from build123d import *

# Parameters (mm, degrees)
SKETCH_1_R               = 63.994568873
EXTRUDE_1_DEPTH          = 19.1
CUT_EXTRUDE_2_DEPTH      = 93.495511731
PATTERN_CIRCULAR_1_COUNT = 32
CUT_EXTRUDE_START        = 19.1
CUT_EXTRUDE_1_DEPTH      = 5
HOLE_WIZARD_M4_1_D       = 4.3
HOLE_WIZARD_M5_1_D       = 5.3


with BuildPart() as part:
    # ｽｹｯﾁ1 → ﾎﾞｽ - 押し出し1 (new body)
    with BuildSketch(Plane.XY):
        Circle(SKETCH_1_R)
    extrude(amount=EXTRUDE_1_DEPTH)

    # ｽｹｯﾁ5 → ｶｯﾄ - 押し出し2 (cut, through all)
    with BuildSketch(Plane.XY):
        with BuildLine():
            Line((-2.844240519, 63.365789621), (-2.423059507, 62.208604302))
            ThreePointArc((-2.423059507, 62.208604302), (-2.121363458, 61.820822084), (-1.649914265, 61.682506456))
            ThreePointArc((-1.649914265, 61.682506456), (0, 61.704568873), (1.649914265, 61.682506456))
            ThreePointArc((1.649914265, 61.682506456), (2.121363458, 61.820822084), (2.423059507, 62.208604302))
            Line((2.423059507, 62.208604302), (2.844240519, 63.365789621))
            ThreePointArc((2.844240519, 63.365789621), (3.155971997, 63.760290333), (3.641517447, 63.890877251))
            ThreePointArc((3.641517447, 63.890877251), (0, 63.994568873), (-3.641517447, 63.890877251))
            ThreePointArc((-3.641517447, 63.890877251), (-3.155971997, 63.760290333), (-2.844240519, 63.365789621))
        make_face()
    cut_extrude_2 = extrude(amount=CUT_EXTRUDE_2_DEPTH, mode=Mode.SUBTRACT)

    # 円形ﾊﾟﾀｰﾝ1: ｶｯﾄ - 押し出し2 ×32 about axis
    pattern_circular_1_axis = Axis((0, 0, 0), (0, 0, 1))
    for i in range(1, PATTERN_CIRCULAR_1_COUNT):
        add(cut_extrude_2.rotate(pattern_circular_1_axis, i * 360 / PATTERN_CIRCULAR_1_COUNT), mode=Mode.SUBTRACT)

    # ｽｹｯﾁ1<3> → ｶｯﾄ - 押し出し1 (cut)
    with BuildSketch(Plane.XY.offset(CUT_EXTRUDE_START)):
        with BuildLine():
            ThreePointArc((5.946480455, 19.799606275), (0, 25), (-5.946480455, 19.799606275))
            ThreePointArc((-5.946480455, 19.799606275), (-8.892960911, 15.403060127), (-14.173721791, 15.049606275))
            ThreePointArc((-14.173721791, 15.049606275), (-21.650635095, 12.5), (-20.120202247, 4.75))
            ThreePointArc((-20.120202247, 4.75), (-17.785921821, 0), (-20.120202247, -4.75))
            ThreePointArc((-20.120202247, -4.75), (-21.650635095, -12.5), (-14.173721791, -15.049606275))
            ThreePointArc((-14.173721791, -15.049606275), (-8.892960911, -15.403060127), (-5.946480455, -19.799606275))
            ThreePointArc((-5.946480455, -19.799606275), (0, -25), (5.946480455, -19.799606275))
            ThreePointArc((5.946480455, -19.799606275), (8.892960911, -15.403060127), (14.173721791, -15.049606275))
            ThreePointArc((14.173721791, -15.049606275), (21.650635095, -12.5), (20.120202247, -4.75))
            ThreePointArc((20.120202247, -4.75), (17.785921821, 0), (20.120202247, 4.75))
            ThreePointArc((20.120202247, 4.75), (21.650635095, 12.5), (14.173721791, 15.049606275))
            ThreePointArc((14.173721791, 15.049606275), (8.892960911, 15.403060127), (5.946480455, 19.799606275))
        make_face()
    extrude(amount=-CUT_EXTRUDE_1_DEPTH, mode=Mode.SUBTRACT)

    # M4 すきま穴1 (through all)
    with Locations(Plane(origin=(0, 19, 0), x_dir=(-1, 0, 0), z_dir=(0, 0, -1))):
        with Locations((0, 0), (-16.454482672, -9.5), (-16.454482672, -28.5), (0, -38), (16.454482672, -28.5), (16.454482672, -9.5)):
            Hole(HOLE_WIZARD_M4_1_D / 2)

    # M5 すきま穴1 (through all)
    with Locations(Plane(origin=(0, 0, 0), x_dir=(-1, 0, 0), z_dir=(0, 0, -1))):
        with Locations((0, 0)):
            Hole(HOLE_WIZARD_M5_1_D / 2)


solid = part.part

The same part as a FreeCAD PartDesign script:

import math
import FreeCAD as App
import Part
import Sketcher
Q = App.Units.Quantity

doc = App.newDocument("Part")
body = doc.addObject("PartDesign::Body", "Body")

# Sketch on XY plane
sketch1 = body.newObject("Sketcher::SketchObject", "Sketch")
sketch1.AttachmentSupport = (doc.getObject("XY_Plane"), [""])
sketch1.MapMode = "FlatFace"
sketch1.addGeometry(Part.Circle(App.Vector(0, 0, 0), App.Vector(0, 0, 1), 63.994569), False)
sketch1.addConstraint([
    Sketcher.Constraint("Coincident", 0, 3, -1, 1),
    Sketcher.Constraint("Diameter", 0, Q("127.989138 mm")),
])
pad1 = body.newObject("PartDesign::Pad", "Pad")
pad1.Profile = sketch1
pad1.Length = 19.1

# Sketch on XY plane
sketch2 = body.newObject("Sketcher::SketchObject", "Sketch001")
sketch2.AttachmentSupport = (doc.getObject("XY_Plane"), [""])
sketch2.MapMode = "FlatFace"
sketch2.addGeometry([
    Part.LineSegment(App.Vector(-2.844241, 63.36579, 0), App.Vector(-2.42306, 62.208604, 0)),  # 0
    Part.ArcOfCircle(Part.Circle(App.Vector(-1.671305, 62.48222, 0), App.Vector(0, 0, 1), 0.8), math.radians(-160), math.radians(-88.467789)),  # 1
    Part.ArcOfCircle(Part.Circle(App.Vector(0, 0.000001, 0), App.Vector(0, 0, 1), 61.704568), math.radians(88.467789), math.radians(91.532211)),  # 2
    Part.ArcOfCircle(Part.Circle(App.Vector(1.671305, 62.48222, 0), App.Vector(0, 0, 1), 0.8), math.radians(-91.532211), math.radians(-20)),  # 3
    Part.LineSegment(App.Vector(2.42306, 62.208604, 0), App.Vector(2.844241, 63.36579, 0)),  # 4
    Part.ArcOfCircle(Part.Circle(App.Vector(3.595995, 63.092174, 0), App.Vector(0, 0, 1), 0.8), math.radians(86.737905), math.radians(160)),  # 5
    Part.ArcOfCircle(Part.Circle(App.Vector(0, 0, 0), App.Vector(0, 0, 1), 63.994569), math.radians(86.737905), math.radians(93.262095)),  # 6
    Part.ArcOfCircle(Part.Circle(App.Vector(-3.595995, 63.092174, 0), App.Vector(0, 0, 1), 0.8), math.radians(20), math.radians(93.262095)),  # 7
], False)
sketch2.addConstraint([
    Sketcher.Constraint("Tangent", 0, 2, 1, 1),
    Sketcher.Constraint("Tangent", 1, 2, 2, 2),
    Sketcher.Constraint("Tangent", 2, 1, 3, 1),
    Sketcher.Constraint("Tangent", 3, 2, 4, 1),
    Sketcher.Constraint("Tangent", 4, 2, 5, 2),
    Sketcher.Constraint("Tangent", 5, 1, 6, 1),
    Sketcher.Constraint("Tangent", 6, 2, 7, 2),
    Sketcher.Constraint("Tangent", 7, 1, 0, 1),
    Sketcher.Constraint("Coincident", 2, 3, -1, 1),
    Sketcher.Constraint("Coincident", 6, 3, -1, 1),
    Sketcher.Constraint("Equal", 1, 3),
    Sketcher.Constraint("Equal", 3, 5),
    Sketcher.Constraint("Equal", 5, 7),
    Sketcher.Constraint("Symmetric", 0, 2, 3, 2, -2),
    Sketcher.Constraint("Radius", 1, Q("0.8 mm")),
    Sketcher.Constraint("Angle", 0, Q("-70 deg")),
    Sketcher.Constraint("Radius", 2, Q("61.704568 mm")),
    Sketcher.Constraint("Radius", 6, Q("63.994569 mm")),
    Sketcher.Constraint("DistanceX", 1, 3, 5, 3, Q("5.2673 mm")),
])
pocket1 = body.newObject("PartDesign::Pocket", "Pocket")
pocket1.Profile = sketch2
pocket1.Type = "ThroughAll"
pocket1.Reversed = True
doc.recompute()

polarpattern = body.newObject("PartDesign::PolarPattern", "PolarPattern")
polarpattern.Originals = [pocket1]
polarpattern.Axis = (doc.getObject("Z_Axis"), [""])
polarpattern.Angle = 360
polarpattern.Occurrences = 32
body.Tip = polarpattern

# Sketch on XY plane
sketch3 = body.newObject("Sketcher::SketchObject", "Sketch002")
sketch3.AttachmentSupport = (doc.getObject("XY_Plane"), [""])
sketch3.MapMode = "FlatFace"
sketch3.AttachmentOffset = App.Placement(App.Vector(0, 0, 19.1), App.Rotation())
sketch3.addGeometry([
    Part.ArcOfCircle(Part.Circle(App.Vector(0, 19, 0), App.Vector(0, 0, 1), 6), math.radians(7.658462), math.radians(172.341538)),  # 0
    Part.ArcOfCircle(Part.Circle(App.Vector(-11.892961, 20.599213, 0), App.Vector(0, 0, 1), 6), math.radians(-112.341538), math.radians(-7.658462)),  # 1
    Part.ArcOfCircle(Part.Circle(App.Vector(-16.454483, 9.5, 0), App.Vector(0, 0, 1), 6), math.radians(67.658462), math.radians(232.341538)),  # 2
    Part.ArcOfCircle(Part.Circle(App.Vector(-23.785922, 0, 0), App.Vector(0, 0, 1), 6), math.radians(-52.341538), math.radians(52.341538)),  # 3
    Part.ArcOfCircle(Part.Circle(App.Vector(-16.454483, -9.5, 0), App.Vector(0, 0, 1), 6), math.radians(127.658462), math.radians(292.341538)),  # 4
    Part.ArcOfCircle(Part.Circle(App.Vector(-11.892961, -20.599213, 0), App.Vector(0, 0, 1), 6), math.radians(7.658462), math.radians(112.341538)),  # 5
    Part.ArcOfCircle(Part.Circle(App.Vector(0, -19, 0), App.Vector(0, 0, 1), 6), math.radians(-172.341538), math.radians(-7.658462)),  # 6
    Part.ArcOfCircle(Part.Circle(App.Vector(11.892961, -20.599213, 0), App.Vector(0, 0, 1), 6), math.radians(67.658462), math.radians(172.341538)),  # 7
    Part.ArcOfCircle(Part.Circle(App.Vector(16.454483, -9.5, 0), App.Vector(0, 0, 1), 6), math.radians(-112.341538), math.radians(52.341538)),  # 8
    Part.ArcOfCircle(Part.Circle(App.Vector(23.785922, 0, 0), App.Vector(0, 0, 1), 6), math.radians(127.658462), math.radians(232.341538)),  # 9
    Part.ArcOfCircle(Part.Circle(App.Vector(16.454483, 9.5, 0), App.Vector(0, 0, 1), 6), math.radians(-52.341538), math.radians(112.341538)),  # 10
    Part.ArcOfCircle(Part.Circle(App.Vector(11.892961, 20.599213, 0), App.Vector(0, 0, 1), 6), math.radians(-172.341538), math.radians(-67.658462)),  # 11
], False)
sketch3.addConstraint([
    Sketcher.Constraint("Tangent", 0, 2, 1, 2),
    Sketcher.Constraint("Tangent", 1, 1, 2, 1),
    Sketcher.Constraint("Tangent", 2, 2, 3, 2),
    Sketcher.Constraint("Tangent", 3, 1, 4, 1),
    Sketcher.Constraint("Tangent", 4, 2, 5, 2),
    Sketcher.Constraint("Tangent", 5, 1, 6, 1),
    Sketcher.Constraint("Tangent", 6, 2, 7, 2),
    Sketcher.Constraint("Tangent", 7, 1, 8, 1),
    Sketcher.Constraint("Tangent", 8, 2, 9, 2),
    Sketcher.Constraint("Tangent", 9, 1, 10, 1),
    Sketcher.Constraint("Tangent", 10, 2, 11, 2),
    Sketcher.Constraint("Tangent", 11, 1, 0, 1),
    Sketcher.Constraint("Equal", 0, 1),
    Sketcher.Constraint("Equal", 1, 2),
    Sketcher.Constraint("Equal", 2, 3),
    Sketcher.Constraint("Equal", 3, 4),
    Sketcher.Constraint("Equal", 4, 5),
    Sketcher.Constraint("Equal", 5, 6),
    Sketcher.Constraint("Equal", 6, 7),
    Sketcher.Constraint("Equal", 7, 8),
    Sketcher.Constraint("Equal", 8, 9),
    Sketcher.Constraint("Equal", 9, 10),
    Sketcher.Constraint("Equal", 10, 11),
    Sketcher.Constraint("Symmetric", 0, 3, 6, 3, -1, 1),
    Sketcher.Constraint("Symmetric", 2, 3, 8, 3, -1, 1),
    Sketcher.Constraint("Symmetric", 4, 3, 10, 3, -1, 1),
    Sketcher.Constraint("Symmetric", 5, 3, 7, 3, -2),
    Sketcher.Constraint("PointOnObject", 3, 3, -1),
    Sketcher.Constraint("Radius", 0, Q("6 mm")),
    Sketcher.Constraint("DistanceY", -1, 1, 0, 3, Q("19 mm")),
    Sketcher.Constraint("DistanceY", 4, 3, 2, 3, Q("19 mm")),
    Sketcher.Constraint("DistanceX", 3, 3, 1, 1, Q("9.6122 mm")),
])
pocket2 = body.newObject("PartDesign::Pocket", "Pocket001")
pocket2.Profile = sketch3
pocket2.Length = 5

# Sketch on XY plane
sketch4 = body.newObject("Sketcher::SketchObject", "Sketch003")
sketch4.AttachmentSupport = (doc.getObject("XY_Plane"), [""])
sketch4.MapMode = "FlatFace"
sketch4.addGeometry([
    Part.Circle(App.Vector(0, 19, 0), App.Vector(0, 0, 1), 2.15),  # 0
    Part.Circle(App.Vector(16.454483, 9.5, 0), App.Vector(0, 0, 1), 2.15),  # 1
    Part.Circle(App.Vector(16.454483, -9.5, 0), App.Vector(0, 0, 1), 2.15),  # 2
    Part.Circle(App.Vector(0, -19, 0), App.Vector(0, 0, 1), 2.15),  # 3
    Part.Circle(App.Vector(-16.454483, -9.5, 0), App.Vector(0, 0, 1), 2.15),  # 4
    Part.Circle(App.Vector(-16.454483, 9.5, 0), App.Vector(0, 0, 1), 2.15),  # 5
], False)
sketch4.addConstraint([
    Sketcher.Constraint("Equal", 0, 1),
    Sketcher.Constraint("Equal", 1, 2),
    Sketcher.Constraint("Equal", 2, 3),
    Sketcher.Constraint("Equal", 3, 4),
    Sketcher.Constraint("Equal", 4, 5),
    Sketcher.Constraint("Symmetric", 0, 3, 3, 3, -1, 1),
    Sketcher.Constraint("Symmetric", 1, 3, 4, 3, -1, 1),
    Sketcher.Constraint("Symmetric", 2, 3, 5, 3, -1, 1),
    Sketcher.Constraint("Symmetric", 2, 3, 4, 3, -2),
    Sketcher.Constraint("PointOnObject", 0, 3, -2),
    Sketcher.Constraint("Diameter", 0, Q("4.3 mm")),
    Sketcher.Constraint("DistanceY", -1, 1, 0, 3, Q("19 mm")),
    Sketcher.Constraint("DistanceY", 2, 3, 1, 3, Q("19 mm")),
    Sketcher.Constraint("DistanceX", -1, 1, 1, 3, Q("16.454483 mm")),
])
doc.recompute()
hole = body.newObject("PartDesign::Hole", "Hole")
hole.Profile = sketch4
hole.ThreadType = "None"
hole.Diameter = 4.3
hole.DepthType = "ThroughAll"
hole.Reversed = True

# Sketch on XY plane
sketch5 = body.newObject("Sketcher::SketchObject", "Sketch004")
sketch5.AttachmentSupport = (doc.getObject("XY_Plane"), [""])
sketch5.MapMode = "FlatFace"
sketch5.addGeometry(Part.Circle(App.Vector(0, 0, 0), App.Vector(0, 0, 1), 2.65), False)
sketch5.addConstraint([
    Sketcher.Constraint("Coincident", 0, 3, -1, 1),
    Sketcher.Constraint("Diameter", 0, Q("5.3 mm")),
])
doc.recompute()
hole2 = body.newObject("PartDesign::Hole", "Hole001")
hole2.Profile = sketch5
hole2.ThreadType = "None"
hole2.Diameter = 5.3
hole2.DepthType = "ThroughAll"
hole2.Reversed = True

doc.recompute()
